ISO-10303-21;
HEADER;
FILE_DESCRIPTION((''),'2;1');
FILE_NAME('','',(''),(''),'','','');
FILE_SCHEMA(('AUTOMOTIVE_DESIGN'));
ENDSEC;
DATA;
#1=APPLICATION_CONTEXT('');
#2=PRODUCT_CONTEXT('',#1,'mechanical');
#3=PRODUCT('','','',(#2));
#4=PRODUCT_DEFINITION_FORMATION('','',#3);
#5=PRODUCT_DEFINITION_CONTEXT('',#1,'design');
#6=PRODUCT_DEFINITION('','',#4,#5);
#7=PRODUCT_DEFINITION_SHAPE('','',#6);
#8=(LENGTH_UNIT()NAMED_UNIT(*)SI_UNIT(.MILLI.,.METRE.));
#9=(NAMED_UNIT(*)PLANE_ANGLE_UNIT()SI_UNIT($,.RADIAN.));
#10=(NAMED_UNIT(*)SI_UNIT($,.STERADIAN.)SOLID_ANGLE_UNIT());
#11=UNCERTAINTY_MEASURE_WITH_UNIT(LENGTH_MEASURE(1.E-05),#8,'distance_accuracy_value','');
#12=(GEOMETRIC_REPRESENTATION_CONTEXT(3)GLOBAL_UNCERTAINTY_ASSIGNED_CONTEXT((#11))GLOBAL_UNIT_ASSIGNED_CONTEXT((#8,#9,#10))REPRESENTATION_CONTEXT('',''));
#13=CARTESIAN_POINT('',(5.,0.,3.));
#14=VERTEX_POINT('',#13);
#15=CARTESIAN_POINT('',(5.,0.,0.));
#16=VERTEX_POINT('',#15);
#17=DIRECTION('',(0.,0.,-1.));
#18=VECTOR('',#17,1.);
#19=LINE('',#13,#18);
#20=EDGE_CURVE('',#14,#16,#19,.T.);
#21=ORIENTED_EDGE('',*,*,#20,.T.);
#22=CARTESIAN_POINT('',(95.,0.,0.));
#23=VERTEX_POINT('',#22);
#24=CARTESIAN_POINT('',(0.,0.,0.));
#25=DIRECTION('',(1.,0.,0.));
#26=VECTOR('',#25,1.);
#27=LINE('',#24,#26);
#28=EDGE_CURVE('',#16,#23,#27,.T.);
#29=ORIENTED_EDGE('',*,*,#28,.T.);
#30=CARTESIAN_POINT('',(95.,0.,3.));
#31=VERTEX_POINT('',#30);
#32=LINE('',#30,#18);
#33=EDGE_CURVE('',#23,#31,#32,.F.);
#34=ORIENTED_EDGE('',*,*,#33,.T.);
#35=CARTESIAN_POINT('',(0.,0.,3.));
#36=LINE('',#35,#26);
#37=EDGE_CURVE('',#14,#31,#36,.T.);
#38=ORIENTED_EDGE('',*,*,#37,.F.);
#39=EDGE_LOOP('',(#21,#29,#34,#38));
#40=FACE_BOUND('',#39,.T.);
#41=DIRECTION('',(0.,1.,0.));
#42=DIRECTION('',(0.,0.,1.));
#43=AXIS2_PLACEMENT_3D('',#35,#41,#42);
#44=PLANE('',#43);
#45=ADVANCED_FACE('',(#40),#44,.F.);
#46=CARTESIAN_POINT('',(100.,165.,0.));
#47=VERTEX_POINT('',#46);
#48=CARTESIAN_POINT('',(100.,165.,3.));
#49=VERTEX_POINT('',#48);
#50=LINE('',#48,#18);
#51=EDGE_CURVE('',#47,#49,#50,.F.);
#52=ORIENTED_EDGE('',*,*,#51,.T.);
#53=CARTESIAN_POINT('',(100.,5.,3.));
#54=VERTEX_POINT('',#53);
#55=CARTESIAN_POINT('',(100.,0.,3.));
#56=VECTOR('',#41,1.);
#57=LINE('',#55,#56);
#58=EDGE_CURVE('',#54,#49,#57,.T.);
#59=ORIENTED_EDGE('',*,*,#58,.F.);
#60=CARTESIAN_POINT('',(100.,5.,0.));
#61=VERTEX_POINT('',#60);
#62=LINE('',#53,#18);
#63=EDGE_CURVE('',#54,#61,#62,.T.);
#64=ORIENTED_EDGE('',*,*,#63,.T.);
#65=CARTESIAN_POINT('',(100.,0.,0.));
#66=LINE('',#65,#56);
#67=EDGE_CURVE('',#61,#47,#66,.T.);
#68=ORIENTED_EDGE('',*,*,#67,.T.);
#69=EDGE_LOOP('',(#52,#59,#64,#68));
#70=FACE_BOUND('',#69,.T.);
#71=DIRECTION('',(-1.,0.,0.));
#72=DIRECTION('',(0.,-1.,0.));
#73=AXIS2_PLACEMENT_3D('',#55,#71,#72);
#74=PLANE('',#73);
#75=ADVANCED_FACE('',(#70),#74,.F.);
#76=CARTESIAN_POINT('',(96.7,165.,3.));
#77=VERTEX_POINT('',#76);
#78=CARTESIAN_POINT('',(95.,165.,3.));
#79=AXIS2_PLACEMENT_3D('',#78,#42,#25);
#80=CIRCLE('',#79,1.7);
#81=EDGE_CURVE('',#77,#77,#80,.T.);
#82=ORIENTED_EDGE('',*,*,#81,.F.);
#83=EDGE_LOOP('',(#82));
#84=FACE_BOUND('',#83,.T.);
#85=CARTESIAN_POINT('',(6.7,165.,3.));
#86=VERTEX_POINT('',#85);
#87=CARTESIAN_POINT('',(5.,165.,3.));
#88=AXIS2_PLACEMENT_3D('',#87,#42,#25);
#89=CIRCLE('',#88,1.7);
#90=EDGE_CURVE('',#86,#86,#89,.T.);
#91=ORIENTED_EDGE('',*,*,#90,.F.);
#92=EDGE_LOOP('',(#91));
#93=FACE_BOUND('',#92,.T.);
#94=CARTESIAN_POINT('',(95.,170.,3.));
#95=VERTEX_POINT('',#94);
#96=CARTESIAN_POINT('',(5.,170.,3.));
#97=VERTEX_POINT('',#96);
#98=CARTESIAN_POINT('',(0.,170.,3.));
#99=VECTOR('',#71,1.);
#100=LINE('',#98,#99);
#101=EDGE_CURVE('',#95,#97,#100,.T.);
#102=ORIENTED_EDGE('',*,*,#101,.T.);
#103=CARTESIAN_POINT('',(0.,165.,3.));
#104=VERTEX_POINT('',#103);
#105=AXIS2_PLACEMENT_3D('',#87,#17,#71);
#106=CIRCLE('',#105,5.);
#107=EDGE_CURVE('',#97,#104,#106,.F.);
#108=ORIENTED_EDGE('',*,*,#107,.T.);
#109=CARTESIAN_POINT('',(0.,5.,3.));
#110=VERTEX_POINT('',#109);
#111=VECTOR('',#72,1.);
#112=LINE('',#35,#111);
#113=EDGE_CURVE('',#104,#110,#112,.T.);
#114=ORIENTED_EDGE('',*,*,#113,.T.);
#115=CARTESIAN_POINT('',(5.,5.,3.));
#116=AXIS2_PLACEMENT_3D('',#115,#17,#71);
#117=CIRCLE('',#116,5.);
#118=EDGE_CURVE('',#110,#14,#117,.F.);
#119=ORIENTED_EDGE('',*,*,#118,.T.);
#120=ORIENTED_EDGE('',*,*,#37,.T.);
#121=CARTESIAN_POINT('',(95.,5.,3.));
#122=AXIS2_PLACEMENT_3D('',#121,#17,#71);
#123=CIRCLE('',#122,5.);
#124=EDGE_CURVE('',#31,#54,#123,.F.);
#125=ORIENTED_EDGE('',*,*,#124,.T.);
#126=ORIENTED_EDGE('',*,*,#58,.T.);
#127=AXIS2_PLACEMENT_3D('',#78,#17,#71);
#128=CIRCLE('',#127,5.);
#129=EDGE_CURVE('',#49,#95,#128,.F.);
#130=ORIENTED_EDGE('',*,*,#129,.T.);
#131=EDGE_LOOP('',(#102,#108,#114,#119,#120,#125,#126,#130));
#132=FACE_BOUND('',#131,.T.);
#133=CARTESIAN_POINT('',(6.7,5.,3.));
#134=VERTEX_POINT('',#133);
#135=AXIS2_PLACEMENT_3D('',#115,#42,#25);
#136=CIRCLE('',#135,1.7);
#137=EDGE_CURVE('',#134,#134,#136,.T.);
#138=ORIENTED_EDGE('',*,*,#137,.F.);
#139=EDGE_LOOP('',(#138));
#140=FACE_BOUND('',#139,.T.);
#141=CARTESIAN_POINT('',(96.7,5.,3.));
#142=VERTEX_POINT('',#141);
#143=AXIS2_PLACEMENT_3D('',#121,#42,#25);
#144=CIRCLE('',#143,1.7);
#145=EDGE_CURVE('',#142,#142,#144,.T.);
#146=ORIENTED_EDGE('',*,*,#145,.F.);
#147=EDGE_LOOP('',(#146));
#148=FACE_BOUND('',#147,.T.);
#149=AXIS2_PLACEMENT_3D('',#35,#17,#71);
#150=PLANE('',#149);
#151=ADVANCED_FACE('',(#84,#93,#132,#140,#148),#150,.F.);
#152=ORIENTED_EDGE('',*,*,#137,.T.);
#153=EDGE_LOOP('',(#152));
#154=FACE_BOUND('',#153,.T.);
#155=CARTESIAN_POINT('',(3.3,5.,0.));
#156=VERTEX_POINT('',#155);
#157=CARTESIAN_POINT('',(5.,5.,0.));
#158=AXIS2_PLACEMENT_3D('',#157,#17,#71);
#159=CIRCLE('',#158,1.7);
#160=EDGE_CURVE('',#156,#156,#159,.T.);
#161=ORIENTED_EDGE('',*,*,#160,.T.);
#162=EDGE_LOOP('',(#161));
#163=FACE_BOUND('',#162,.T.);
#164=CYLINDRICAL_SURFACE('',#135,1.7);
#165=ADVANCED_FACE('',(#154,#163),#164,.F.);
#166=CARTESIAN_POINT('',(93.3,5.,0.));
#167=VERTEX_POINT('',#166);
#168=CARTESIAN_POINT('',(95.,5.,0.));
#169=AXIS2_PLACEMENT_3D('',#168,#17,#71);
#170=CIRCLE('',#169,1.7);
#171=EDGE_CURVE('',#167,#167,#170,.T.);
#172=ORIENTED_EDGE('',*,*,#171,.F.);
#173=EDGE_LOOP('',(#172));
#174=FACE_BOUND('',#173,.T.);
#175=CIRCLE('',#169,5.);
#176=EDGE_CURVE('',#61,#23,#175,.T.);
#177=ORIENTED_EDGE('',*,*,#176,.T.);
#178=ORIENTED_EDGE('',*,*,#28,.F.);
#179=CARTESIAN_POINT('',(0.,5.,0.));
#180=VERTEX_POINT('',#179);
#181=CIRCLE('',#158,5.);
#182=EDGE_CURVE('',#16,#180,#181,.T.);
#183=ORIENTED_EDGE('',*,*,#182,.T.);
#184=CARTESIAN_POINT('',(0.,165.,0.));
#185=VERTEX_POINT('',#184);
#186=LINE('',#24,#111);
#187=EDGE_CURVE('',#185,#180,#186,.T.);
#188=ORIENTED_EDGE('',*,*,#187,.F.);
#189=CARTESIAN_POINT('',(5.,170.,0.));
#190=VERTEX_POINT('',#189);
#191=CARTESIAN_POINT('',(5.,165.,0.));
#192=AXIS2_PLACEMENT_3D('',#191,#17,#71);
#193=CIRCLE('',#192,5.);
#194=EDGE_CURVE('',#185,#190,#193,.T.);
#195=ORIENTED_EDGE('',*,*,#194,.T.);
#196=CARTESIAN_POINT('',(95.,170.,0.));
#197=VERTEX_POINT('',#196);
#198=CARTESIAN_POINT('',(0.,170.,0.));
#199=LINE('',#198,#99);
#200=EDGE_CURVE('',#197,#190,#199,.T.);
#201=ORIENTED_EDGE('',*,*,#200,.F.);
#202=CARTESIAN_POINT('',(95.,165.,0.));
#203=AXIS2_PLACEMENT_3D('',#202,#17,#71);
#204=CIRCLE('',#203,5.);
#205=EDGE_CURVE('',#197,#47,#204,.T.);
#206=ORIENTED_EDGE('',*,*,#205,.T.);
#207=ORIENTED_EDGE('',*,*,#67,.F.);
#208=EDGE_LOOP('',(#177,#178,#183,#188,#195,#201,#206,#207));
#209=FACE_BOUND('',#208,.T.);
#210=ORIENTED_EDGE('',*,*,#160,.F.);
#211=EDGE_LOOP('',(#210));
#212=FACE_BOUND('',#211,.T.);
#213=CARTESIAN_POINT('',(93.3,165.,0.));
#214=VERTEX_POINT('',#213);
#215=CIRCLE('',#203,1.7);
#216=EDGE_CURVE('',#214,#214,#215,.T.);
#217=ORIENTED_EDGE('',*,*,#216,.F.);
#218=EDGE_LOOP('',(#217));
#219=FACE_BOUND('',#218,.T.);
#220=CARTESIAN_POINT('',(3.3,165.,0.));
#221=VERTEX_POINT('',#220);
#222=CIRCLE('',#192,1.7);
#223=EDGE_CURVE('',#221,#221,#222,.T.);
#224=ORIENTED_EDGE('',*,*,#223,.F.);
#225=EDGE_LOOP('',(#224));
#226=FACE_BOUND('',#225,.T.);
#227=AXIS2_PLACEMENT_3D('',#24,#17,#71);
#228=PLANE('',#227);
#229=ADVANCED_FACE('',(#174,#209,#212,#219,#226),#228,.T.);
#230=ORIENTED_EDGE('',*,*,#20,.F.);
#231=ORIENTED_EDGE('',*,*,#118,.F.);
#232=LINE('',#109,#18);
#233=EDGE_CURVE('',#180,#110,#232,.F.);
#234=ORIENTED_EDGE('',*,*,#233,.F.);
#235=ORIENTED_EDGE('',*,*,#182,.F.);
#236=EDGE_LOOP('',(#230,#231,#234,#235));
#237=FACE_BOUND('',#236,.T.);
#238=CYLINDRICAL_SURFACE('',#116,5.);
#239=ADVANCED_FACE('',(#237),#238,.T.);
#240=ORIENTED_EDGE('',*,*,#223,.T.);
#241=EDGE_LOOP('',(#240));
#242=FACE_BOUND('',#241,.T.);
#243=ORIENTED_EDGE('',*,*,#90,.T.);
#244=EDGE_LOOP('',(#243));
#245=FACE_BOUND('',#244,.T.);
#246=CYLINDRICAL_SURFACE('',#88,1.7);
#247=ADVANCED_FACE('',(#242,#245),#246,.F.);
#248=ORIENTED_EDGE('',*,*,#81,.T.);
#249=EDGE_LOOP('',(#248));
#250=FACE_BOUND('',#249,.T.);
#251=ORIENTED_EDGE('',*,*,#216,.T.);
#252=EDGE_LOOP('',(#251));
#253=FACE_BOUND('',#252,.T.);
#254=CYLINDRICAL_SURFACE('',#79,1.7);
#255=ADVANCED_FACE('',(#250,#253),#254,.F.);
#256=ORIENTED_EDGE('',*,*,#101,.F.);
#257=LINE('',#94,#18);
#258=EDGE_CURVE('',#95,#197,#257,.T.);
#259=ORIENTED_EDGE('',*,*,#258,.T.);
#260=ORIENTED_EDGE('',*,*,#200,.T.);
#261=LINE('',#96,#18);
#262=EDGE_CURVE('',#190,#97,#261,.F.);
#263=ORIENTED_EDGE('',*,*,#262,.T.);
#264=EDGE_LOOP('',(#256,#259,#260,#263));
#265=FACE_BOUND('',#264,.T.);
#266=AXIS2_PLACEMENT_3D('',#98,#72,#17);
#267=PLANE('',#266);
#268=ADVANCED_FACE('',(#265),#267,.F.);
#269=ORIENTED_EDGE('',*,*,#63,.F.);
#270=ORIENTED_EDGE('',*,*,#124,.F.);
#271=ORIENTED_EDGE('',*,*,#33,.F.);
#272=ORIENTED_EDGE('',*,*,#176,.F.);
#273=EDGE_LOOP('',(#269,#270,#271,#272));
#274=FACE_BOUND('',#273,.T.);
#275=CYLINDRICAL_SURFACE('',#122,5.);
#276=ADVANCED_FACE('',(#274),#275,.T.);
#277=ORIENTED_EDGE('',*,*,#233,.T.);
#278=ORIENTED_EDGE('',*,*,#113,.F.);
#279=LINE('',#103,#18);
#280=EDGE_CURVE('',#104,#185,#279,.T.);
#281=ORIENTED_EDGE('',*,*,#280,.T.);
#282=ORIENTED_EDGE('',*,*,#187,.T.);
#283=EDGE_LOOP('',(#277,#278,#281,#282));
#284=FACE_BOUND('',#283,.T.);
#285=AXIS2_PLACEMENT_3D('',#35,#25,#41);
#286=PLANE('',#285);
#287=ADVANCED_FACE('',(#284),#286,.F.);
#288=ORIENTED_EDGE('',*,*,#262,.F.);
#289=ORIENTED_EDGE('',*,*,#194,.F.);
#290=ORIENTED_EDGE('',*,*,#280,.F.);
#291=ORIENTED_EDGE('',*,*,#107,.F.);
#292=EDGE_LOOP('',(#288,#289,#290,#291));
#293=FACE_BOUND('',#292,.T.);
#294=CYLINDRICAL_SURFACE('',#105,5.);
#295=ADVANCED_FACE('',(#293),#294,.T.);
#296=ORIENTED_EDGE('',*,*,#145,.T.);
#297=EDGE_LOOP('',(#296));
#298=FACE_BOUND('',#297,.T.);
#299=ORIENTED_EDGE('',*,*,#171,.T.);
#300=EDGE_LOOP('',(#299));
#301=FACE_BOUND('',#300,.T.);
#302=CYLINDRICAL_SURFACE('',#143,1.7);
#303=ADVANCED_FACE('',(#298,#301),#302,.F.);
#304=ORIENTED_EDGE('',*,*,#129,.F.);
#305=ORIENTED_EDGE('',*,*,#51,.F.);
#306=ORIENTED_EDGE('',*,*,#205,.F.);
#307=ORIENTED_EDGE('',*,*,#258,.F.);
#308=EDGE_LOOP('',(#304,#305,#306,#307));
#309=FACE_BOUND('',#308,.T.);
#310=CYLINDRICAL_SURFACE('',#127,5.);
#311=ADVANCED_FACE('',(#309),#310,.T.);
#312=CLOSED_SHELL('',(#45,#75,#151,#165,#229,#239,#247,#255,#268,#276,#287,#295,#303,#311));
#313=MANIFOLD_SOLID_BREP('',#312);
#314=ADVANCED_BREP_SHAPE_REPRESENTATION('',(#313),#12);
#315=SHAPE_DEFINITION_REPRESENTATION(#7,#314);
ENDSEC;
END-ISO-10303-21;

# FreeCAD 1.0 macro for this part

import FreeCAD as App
import Part
import Sketcher
from FreeCAD import Vector


def edges_at(feature, points):
    """Names of the edges that pass closest to the given points."""
    edges = feature.Shape.Edges
    near = lambda p: min(range(len(edges)), key=lambda i: edges[i].distToShape(Part.Vertex(*p))[0])
    return sorted({f"Edge{near(p) + 1}" for p in points})


def add_polygon(sketch, points):
    """Adds a closed chain of lines whose ends are joined by coincident constraints."""
    first, n = sketch.GeometryCount, len(points)
    for a, b in zip(points, points[1:] + points[:1]):
        sketch.addGeometry(Part.LineSegment(App.Vector(*a, 0), App.Vector(*b, 0)), False)
    for i in range(n):
        sketch.addConstraint(Sketcher.Constraint("Coincident", first + i, 2, first + (i + 1) % n, 1))

doc = App.newDocument("Part")
body = doc.addObject("PartDesign::Body", "Body")

sketch1 = body.newObject("Sketcher::SketchObject", "Sketch")
sketch1.AttachmentSupport = (doc.getObject("XY_Plane"), [""])
sketch1.MapMode = "FlatFace"
add_polygon(sketch1, [(0, 170), (0, 0), (100, 0), (100, 170)])
sketch1.addConstraint([
    Sketcher.Constraint("Vertical", 0),
    Sketcher.Constraint("Horizontal", 1),
    Sketcher.Constraint("Vertical", 2),
    Sketcher.Constraint("Horizontal", 3),
    Sketcher.Constraint("Coincident", 0, 2, -1, 1),
    Sketcher.Constraint("DistanceX", 1, 1, 1, 2, 100.0),
    Sketcher.Constraint("DistanceY", 0, 2, 0, 1, 170.0),
])
pad1 = body.newObject("PartDesign::Pad", "Pad")
pad1.Profile = sketch1
pad1.Length = 3

sketch2 = body.newObject("Sketcher::SketchObject", "Sketch001")
sketch2.AttachmentSupport = (doc.getObject("XY_Plane"), [""])
sketch2.MapMode = "FlatFace"
sketch2.AttachmentOffset = App.Placement(Vector(0, 0, 3), App.Rotation())
sketch2.addGeometry([
    Part.Circle(Vector(5, 165, 0), Vector(0, 0, 1), 1.7),
    Part.Circle(Vector(95, 165, 0), Vector(0, 0, 1), 1.7),
    Part.Circle(Vector(95, 5, 0), Vector(0, 0, 1), 1.7),
    Part.Circle(Vector(5, 5, 0), Vector(0, 0, 1), 1.7),
], False)
sketch2.addConstraint([
    Sketcher.Constraint("Equal", 0, 1),
    Sketcher.Constraint("Equal", 1, 2),
    Sketcher.Constraint("Equal", 2, 3),
    Sketcher.Constraint("Horizontal", 0, 3, 1, 3),
    Sketcher.Constraint("Horizontal", 2, 3, 3, 3),
    Sketcher.Constraint("Vertical", 1, 3, 2, 3),
    Sketcher.Constraint("Vertical", 0, 3, 3, 3),
    Sketcher.Constraint("Diameter", 0, 3.4),
    Sketcher.Constraint("DistanceX", -1, 1, 0, 3, 5.0),
    Sketcher.Constraint("DistanceY", -1, 1, 0, 3, 165.0),
    Sketcher.Constraint("DistanceX", -1, 1, 1, 3, 95.0),
    Sketcher.Constraint("DistanceY", -1, 1, 2, 3, 5.0),
])
doc.recompute()
hole = body.newObject("PartDesign::Hole", "Hole")
hole.Profile = sketch2
hole.ThreadType = "None"
hole.Diameter = 3.4
hole.DepthType = "Dimension"
hole.Depth = 7.5
hole.DrillPoint = "Angled"
hole.DrillPointAngle = 118
doc.recompute()

fillet = body.newObject("PartDesign::Fillet", "Fillet")
fillet.Base = (hole, edges_at(hole, [
    (0, 170, 1.5),
    (100, 170, 1.5),
    (100, 0, 1.5),
    (0, 0, 1.5),
]))
fillet.Radius = 5

doc.recompute()
